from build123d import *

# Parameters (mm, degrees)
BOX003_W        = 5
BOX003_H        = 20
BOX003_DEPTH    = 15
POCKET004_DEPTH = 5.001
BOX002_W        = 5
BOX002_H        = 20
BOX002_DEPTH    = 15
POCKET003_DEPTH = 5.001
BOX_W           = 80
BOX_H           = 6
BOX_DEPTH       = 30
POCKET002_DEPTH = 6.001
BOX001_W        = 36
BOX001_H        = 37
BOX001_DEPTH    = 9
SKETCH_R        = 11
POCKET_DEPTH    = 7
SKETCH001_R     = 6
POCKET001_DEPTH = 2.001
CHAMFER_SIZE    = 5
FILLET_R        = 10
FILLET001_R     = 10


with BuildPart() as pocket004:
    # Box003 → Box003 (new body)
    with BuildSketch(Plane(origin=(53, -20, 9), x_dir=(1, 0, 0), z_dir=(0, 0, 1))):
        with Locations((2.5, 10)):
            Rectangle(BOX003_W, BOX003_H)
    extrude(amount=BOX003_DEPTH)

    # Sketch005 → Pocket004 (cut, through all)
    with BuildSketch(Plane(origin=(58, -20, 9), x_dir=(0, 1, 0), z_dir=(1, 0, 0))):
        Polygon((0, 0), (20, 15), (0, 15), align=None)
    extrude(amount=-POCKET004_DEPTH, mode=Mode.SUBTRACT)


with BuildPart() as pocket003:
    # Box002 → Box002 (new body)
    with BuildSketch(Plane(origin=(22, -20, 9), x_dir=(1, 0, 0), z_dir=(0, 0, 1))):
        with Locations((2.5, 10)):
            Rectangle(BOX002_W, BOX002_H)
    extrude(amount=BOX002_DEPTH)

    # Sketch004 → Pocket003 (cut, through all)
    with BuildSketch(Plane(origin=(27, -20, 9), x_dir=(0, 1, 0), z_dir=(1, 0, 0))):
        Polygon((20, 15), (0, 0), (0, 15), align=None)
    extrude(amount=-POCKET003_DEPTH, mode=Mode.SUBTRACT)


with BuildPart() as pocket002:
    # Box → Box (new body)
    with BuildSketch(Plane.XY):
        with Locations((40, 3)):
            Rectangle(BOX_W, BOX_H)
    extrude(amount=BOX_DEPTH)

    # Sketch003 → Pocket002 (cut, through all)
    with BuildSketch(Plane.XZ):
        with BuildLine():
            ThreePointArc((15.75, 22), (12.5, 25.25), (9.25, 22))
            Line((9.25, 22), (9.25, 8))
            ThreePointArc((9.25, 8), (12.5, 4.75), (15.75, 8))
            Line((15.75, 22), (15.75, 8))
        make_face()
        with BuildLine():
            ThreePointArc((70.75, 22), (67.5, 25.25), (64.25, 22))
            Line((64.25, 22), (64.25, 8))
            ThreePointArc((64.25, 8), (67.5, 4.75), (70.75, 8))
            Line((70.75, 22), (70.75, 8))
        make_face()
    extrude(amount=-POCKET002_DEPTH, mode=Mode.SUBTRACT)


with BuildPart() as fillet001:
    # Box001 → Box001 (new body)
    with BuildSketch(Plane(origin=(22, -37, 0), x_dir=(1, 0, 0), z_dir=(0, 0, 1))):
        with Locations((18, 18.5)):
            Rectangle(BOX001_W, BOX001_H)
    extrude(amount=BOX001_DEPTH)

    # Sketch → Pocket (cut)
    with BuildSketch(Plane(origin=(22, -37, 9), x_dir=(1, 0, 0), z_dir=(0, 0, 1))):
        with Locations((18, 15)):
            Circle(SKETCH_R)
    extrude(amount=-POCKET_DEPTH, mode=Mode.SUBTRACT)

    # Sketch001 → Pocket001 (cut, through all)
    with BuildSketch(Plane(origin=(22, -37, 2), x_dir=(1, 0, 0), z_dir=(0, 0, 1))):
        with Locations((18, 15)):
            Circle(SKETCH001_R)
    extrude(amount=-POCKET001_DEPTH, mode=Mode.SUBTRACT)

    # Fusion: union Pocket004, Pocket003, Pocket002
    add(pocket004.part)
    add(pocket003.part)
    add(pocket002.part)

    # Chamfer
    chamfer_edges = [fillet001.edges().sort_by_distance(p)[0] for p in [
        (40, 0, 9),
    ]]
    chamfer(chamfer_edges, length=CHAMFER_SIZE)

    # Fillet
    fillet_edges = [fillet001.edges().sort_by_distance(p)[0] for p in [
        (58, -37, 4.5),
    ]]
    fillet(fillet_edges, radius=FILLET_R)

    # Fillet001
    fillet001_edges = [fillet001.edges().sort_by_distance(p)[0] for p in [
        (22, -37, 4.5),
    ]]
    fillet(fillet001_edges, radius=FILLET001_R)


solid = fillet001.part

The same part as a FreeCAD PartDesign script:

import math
import FreeCAD as App
import Part
import Sketcher
Q = App.Units.Quantity


def edges_at(feature, points):
    """Names of the edges that pass closest to the given points."""
    edges = feature.Shape.Edges
    near = lambda p: min(range(len(edges)), key=lambda i: edges[i].distToShape(Part.Vertex(*p))[0])
    return sorted({f"Edge{near(p) + 1}" for p in points})

doc = App.newDocument("Part")
body = doc.addObject("PartDesign::Body", "Body")

sketch1 = body.newObject("Sketcher::SketchObject", "Sketch")
sketch1.AttachmentSupport = (doc.getObject("XY_Plane"), [""])
sketch1.MapMode = "FlatFace"
sketch1.AttachmentOffset = App.Placement(App.Vector(0, 0, 9), App.Rotation())
sketch1.addGeometry(Part.LineSegment(App.Vector(53, 0, 0), App.Vector(53, -20, 0)), False)
sketch1.addGeometry(Part.LineSegment(App.Vector(53, -20, 0), App.Vector(58, -20, 0)), False)
sketch1.addGeometry(Part.LineSegment(App.Vector(58, -20, 0), App.Vector(58, 0, 0)), False)
sketch1.addGeometry(Part.LineSegment(App.Vector(58, 0, 0), App.Vector(53, 0, 0)), False)
sketch1.addConstraint(Sketcher.Constraint("Coincident", 0, 2, 1, 1))
sketch1.addConstraint(Sketcher.Constraint("Coincident", 1, 2, 2, 1))
sketch1.addConstraint(Sketcher.Constraint("Coincident", 2, 2, 3, 1))
sketch1.addConstraint(Sketcher.Constraint("Coincident", 3, 2, 0, 1))
sketch1.addConstraint(Sketcher.Constraint("Vertical", 0))
sketch1.addConstraint(Sketcher.Constraint("Horizontal", 1))
sketch1.addConstraint(Sketcher.Constraint("Vertical", 2))
sketch1.addConstraint(Sketcher.Constraint("Horizontal", 3))
sketch1.addConstraint(Sketcher.Constraint("PointOnObject", 2, 2, -1))
sketch1.addConstraint(Sketcher.Constraint("DistanceX", 1, 1, 1, 2, Q("5 mm")))
sketch1.addConstraint(Sketcher.Constraint("DistanceY", 0, 2, 0, 1, Q("20 mm")))
sketch1.addConstraint(Sketcher.Constraint("DistanceX", -1, 1, 0, 2, Q("53 mm")))
pad1 = body.newObject("PartDesign::Pad", "Pad")
pad1.Profile = sketch1
pad1.Length = 15

sketch2 = body.newObject("Sketcher::SketchObject", "Sketch001")
sketch2.AttachmentSupport = (doc.getObject("YZ_Plane"), [""])
sketch2.MapMode = "FlatFace"
sketch2.AttachmentOffset = App.Placement(App.Vector(0, 0, 58), App.Rotation())
sketch2.addGeometry(Part.LineSegment(App.Vector(-20, 9, 0), App.Vector(0, 24, 0)), False)
sketch2.addGeometry(Part.LineSegment(App.Vector(0, 24, 0), App.Vector(-20, 24, 0)), False)
sketch2.addGeometry(Part.LineSegment(App.Vector(-20, 24, 0), App.Vector(-20, 9, 0)), False)
sketch2.addConstraint(Sketcher.Constraint("Coincident", 0, 2, 1, 1))
sketch2.addConstraint(Sketcher.Constraint("Coincident", 1, 2, 2, 1))
sketch2.addConstraint(Sketcher.Constraint("Coincident", 2, 2, 0, 1))
sketch2.addConstraint(Sketcher.Constraint("Horizontal", 1))
sketch2.addConstraint(Sketcher.Constraint("Vertical", 2))
sketch2.addConstraint(Sketcher.Constraint("PointOnObject", 0, 2, -2))
sketch2.addConstraint(Sketcher.Constraint("DistanceX", 1, 2, 1, 1, Q("20 mm")))
sketch2.addConstraint(Sketcher.Constraint("DistanceY", 2, 2, 2, 1, Q("15 mm")))
sketch2.addConstraint(Sketcher.Constraint("DistanceY", -1, 1, 0, 2, Q("24 mm")))
pocket1 = body.newObject("PartDesign::Pocket", "Pocket")
pocket1.Profile = sketch2
pocket1.Type = "ThroughAll"
body2 = doc.addObject("PartDesign::Body", "Body001")

sketch3 = body2.newObject("Sketcher::SketchObject", "Sketch002")
sketch3.AttachmentSupport = (doc.getObject("XY_Plane001"), [""])
sketch3.MapMode = "FlatFace"
sketch3.AttachmentOffset = App.Placement(App.Vector(0, 0, 9), App.Rotation())
sketch3.addGeometry(Part.LineSegment(App.Vector(22, 0, 0), App.Vector(22, -20, 0)), False)
sketch3.addGeometry(Part.LineSegment(App.Vector(22, -20, 0), App.Vector(27, -20, 0)), False)
sketch3.addGeometry(Part.LineSegment(App.Vector(27, -20, 0), App.Vector(27, 0, 0)), False)
sketch3.addGeometry(Part.LineSegment(App.Vector(27, 0, 0), App.Vector(22, 0, 0)), False)
sketch3.addConstraint(Sketcher.Constraint("Coincident", 0, 2, 1, 1))
sketch3.addConstraint(Sketcher.Constraint("Coincident", 1, 2, 2, 1))
sketch3.addConstraint(Sketcher.Constraint("Coincident", 2, 2, 3, 1))
sketch3.addConstraint(Sketcher.Constraint("Coincident", 3, 2, 0, 1))
sketch3.addConstraint(Sketcher.Constraint("Vertical", 0))
sketch3.addConstraint(Sketcher.Constraint("Horizontal", 1))
sketch3.addConstraint(Sketcher.Constraint("Vertical", 2))
sketch3.addConstraint(Sketcher.Constraint("Horizontal", 3))
sketch3.addConstraint(Sketcher.Constraint("PointOnObject", 2, 2, -1))
sketch3.addConstraint(Sketcher.Constraint("DistanceX", 1, 1, 1, 2, Q("5 mm")))
sketch3.addConstraint(Sketcher.Constraint("DistanceY", 0, 2, 0, 1, Q("20 mm")))
sketch3.addConstraint(Sketcher.Constraint("DistanceX", -1, 1, 0, 2, Q("22 mm")))
pad2 = body2.newObject("PartDesign::Pad", "Pad001")
pad2.Profile = sketch3
pad2.Length = 15

sketch4 = body2.newObject("Sketcher::SketchObject", "Sketch003")
sketch4.AttachmentSupport = (doc.getObject("YZ_Plane001"), [""])
sketch4.MapMode = "FlatFace"
sketch4.AttachmentOffset = App.Placement(App.Vector(0, 0, 27), App.Rotation())
sketch4.addGeometry(Part.LineSegment(App.Vector(-20, 9, 0), App.Vector(0, 24, 0)), False)
sketch4.addGeometry(Part.LineSegment(App.Vector(0, 24, 0), App.Vector(-20, 24, 0)), False)
sketch4.addGeometry(Part.LineSegment(App.Vector(-20, 24, 0), App.Vector(-20, 9, 0)), False)
sketch4.addConstraint(Sketcher.Constraint("Coincident", 0, 2, 1, 1))
sketch4.addConstraint(Sketcher.Constraint("Coincident", 1, 2, 2, 1))
sketch4.addConstraint(Sketcher.Constraint("Coincident", 2, 2, 0, 1))
sketch4.addConstraint(Sketcher.Constraint("Horizontal", 1))
sketch4.addConstraint(Sketcher.Constraint("Vertical", 2))
sketch4.addConstraint(Sketcher.Constraint("PointOnObject", 0, 2, -2))
sketch4.addConstraint(Sketcher.Constraint("DistanceX", 1, 2, 1, 1, Q("20 mm")))
sketch4.addConstraint(Sketcher.Constraint("DistanceY", 2, 2, 2, 1, Q("15 mm")))
sketch4.addConstraint(Sketcher.Constraint("DistanceY", -1, 1, 0, 2, Q("24 mm")))
pocket2 = body2.newObject("PartDesign::Pocket", "Pocket001")
pocket2.Profile = sketch4
pocket2.Type = "ThroughAll"
body3 = doc.addObject("PartDesign::Body", "Body002")

sketch5 = body3.newObject("Sketcher::SketchObject", "Sketch004")
sketch5.AttachmentSupport = (doc.getObject("XY_Plane002"), [""])
sketch5.MapMode = "FlatFace"
sketch5.addGeometry(Part.LineSegment(App.Vector(0, 6, 0), App.Vector(0, 0, 0)), False)
sketch5.addGeometry(Part.LineSegment(App.Vector(0, 0, 0), App.Vector(80, 0, 0)), False)
sketch5.addGeometry(Part.LineSegment(App.Vector(80, 0, 0), App.Vector(80, 6, 0)), False)
sketch5.addGeometry(Part.LineSegment(App.Vector(80, 6, 0), App.Vector(0, 6, 0)), False)
sketch5.addConstraint(Sketcher.Constraint("Coincident", 0, 2, 1, 1))
sketch5.addConstraint(Sketcher.Constraint("Coincident", 1, 2, 2, 1))
sketch5.addConstraint(Sketcher.Constraint("Coincident", 2, 2, 3, 1))
sketch5.addConstraint(Sketcher.Constraint("Coincident", 3, 2, 0, 1))
sketch5.addConstraint(Sketcher.Constraint("Vertical", 0))
sketch5.addConstraint(Sketcher.Constraint("Horizontal", 1))
sketch5.addConstraint(Sketcher.Constraint("Vertical", 2))
sketch5.addConstraint(Sketcher.Constraint("Horizontal", 3))
sketch5.addConstraint(Sketcher.Constraint("Coincident", 0, 2, -1, 1))
sketch5.addConstraint(Sketcher.Constraint("DistanceX", 1, 1, 1, 2, Q("80 mm")))
sketch5.addConstraint(Sketcher.Constraint("DistanceY", 0, 2, 0, 1, Q("6 mm")))
pad3 = body3.newObject("PartDesign::Pad", "Pad002")
pad3.Profile = sketch5
pad3.Length = 30

sketch6 = body3.newObject("Sketcher::SketchObject", "Sketch005")
sketch6.AttachmentSupport = (doc.getObject("XZ_Plane002"), [""])
sketch6.MapMode = "FlatFace"
sketch6.addGeometry(Part.ArcOfCircle(Part.Circle(App.Vector(12.5, 22, 0), App.Vector(0, 0, 1), 3.25), math.radians(0), math.radians(180)), False)
sketch6.addGeometry(Part.LineSegment(App.Vector(9.25, 22, 0), App.Vector(9.25, 8, 0)), False)
sketch6.addGeometry(Part.ArcOfCircle(Part.Circle(App.Vector(12.5, 8, 0), App.Vector(0, 0, 1), 3.25), math.radians(180), math.radians(360)), False)
sketch6.addGeometry(Part.LineSegment(App.Vector(15.75, 8, 0), App.Vector(15.75, 22, 0)), False)
sketch6.addGeometry(Part.ArcOfCircle(Part.Circle(App.Vector(67.5, 22, 0), App.Vector(0, 0, 1), 3.25), math.radians(0), math.radians(180)), False)
sketch6.addGeometry(Part.LineSegment(App.Vector(64.25, 22, 0), App.Vector(64.25, 8, 0)), False)
sketch6.addGeometry(Part.ArcOfCircle(Part.Circle(App.Vector(67.5, 8, 0), App.Vector(0, 0, 1), 3.25), math.radians(180), math.radians(360)), False)
sketch6.addGeometry(Part.LineSegment(App.Vector(70.75, 8, 0), App.Vector(70.75, 22, 0)), False)
sketch6.addConstraint(Sketcher.Constraint("Tangent", 0, 2, 1, 1))
sketch6.addConstraint(Sketcher.Constraint("Tangent", 1, 2, 2, 1))
sketch6.addConstraint(Sketcher.Constraint("Tangent", 2, 2, 3, 1))
sketch6.addConstraint(Sketcher.Constraint("Tangent", 3, 2, 0, 1))
sketch6.addConstraint(Sketcher.Constraint("Tangent", 4, 2, 5, 1))
sketch6.addConstraint(Sketcher.Constraint("Tangent", 5, 2, 6, 1))
sketch6.addConstraint(Sketcher.Constraint("Tangent", 6, 2, 7, 1))
sketch6.addConstraint(Sketcher.Constraint("Tangent", 7, 2, 4, 1))
sketch6.addConstraint(Sketcher.Constraint("Vertical", 1))
sketch6.addConstraint(Sketcher.Constraint("Vertical", 3))
sketch6.addConstraint(Sketcher.Constraint("Vertical", 5))
sketch6.addConstraint(Sketcher.Constraint("Vertical", 7))
sketch6.addConstraint(Sketcher.Constraint("Equal", 2, 4))
sketch6.addConstraint(Sketcher.Constraint("Horizontal", 0, 3, 4, 3))
sketch6.addConstraint(Sketcher.Constraint("Horizontal", 2, 3, 6, 3))
sketch6.addConstraint(Sketcher.Constraint("DistanceY", 1, 2, 1, 1, Q("14 mm")))
sketch6.addConstraint(Sketcher.Constraint("Radius", 0, Q("3.25 mm")))
sketch6.addConstraint(Sketcher.Constraint("DistanceY", -1, 1, 0, 3, Q("22 mm")))
sketch6.addConstraint(Sketcher.Constraint("DistanceX", 0, 3, 4, 3, Q("55 mm")))
sketch6.addConstraint(Sketcher.Constraint("DistanceX", -1, 1, 0, 3, Q("12.5 mm")))
pocket3 = body3.newObject("PartDesign::Pocket", "Pocket002")
pocket3.Profile = sketch6
pocket3.Type = "ThroughAll"
body4 = doc.addObject("PartDesign::Body", "Body003")

sketch7 = body4.newObject("Sketcher::SketchObject", "Sketch006")
sketch7.AttachmentSupport = (doc.getObject("XY_Plane003"), [""])
sketch7.MapMode = "FlatFace"
sketch7.addGeometry(Part.LineSegment(App.Vector(22, 0, 0), App.Vector(22, -37, 0)), False)
sketch7.addGeometry(Part.LineSegment(App.Vector(22, -37, 0), App.Vector(58, -37, 0)), False)
sketch7.addGeometry(Part.LineSegment(App.Vector(58, -37, 0), App.Vector(58, 0, 0)), False)
sketch7.addGeometry(Part.LineSegment(App.Vector(58, 0, 0), App.Vector(22, 0, 0)), False)
sketch7.addConstraint(Sketcher.Constraint("Coincident", 0, 2, 1, 1))
sketch7.addConstraint(Sketcher.Constraint("Coincident", 1, 2, 2, 1))
sketch7.addConstraint(Sketcher.Constraint("Coincident", 2, 2, 3, 1))
sketch7.addConstraint(Sketcher.Constraint("Coincident", 3, 2, 0, 1))
sketch7.addConstraint(Sketcher.Constraint("Vertical", 0))
sketch7.addConstraint(Sketcher.Constraint("Horizontal", 1))
sketch7.addConstraint(Sketcher.Constraint("Vertical", 2))
sketch7.addConstraint(Sketcher.Constraint("Horizontal", 3))
sketch7.addConstraint(Sketcher.Constraint("PointOnObject", 2, 2, -1))
sketch7.addConstraint(Sketcher.Constraint("DistanceX", 1, 1, 1, 2, Q("36 mm")))
sketch7.addConstraint(Sketcher.Constraint("DistanceY", 0, 2, 0, 1, Q("37 mm")))
sketch7.addConstraint(Sketcher.Constraint("DistanceX", -1, 1, 0, 2, Q("22 mm")))
pad4 = body4.newObject("PartDesign::Pad", "Pad003")
pad4.Profile = sketch7
pad4.Length = 9

sketch8 = body4.newObject("Sketcher::SketchObject", "Sketch007")
sketch8.AttachmentSupport = (doc.getObject("XY_Plane003"), [""])
sketch8.MapMode = "FlatFace"
sketch8.AttachmentOffset = App.Placement(App.Vector(0, 0, 9), App.Rotation())
sketch8.addGeometry(Part.Circle(App.Vector(40, -22, 0), App.Vector(0, 0, 1), 11), False)
sketch8.addConstraint(Sketcher.Constraint("Diameter", 0, Q("22 mm")))
sketch8.addConstraint(Sketcher.Constraint("DistanceX", -1, 1, 0, 3, Q("40 mm")))
sketch8.addConstraint(Sketcher.Constraint("DistanceY", 0, 3, -1, 1, Q("22 mm")))
pocket4 = body4.newObject("PartDesign::Pocket", "Pocket003")
pocket4.Profile = sketch8
pocket4.Length = 7

sketch9 = body4.newObject("Sketcher::SketchObject", "Sketch008")
sketch9.AttachmentSupport = (doc.getObject("XY_Plane003"), [""])
sketch9.MapMode = "FlatFace"
sketch9.AttachmentOffset = App.Placement(App.Vector(0, 0, 2), App.Rotation())
sketch9.addGeometry(Part.Circle(App.Vector(40, -22, 0), App.Vector(0, 0, 1), 6), False)
sketch9.addConstraint(Sketcher.Constraint("Diameter", 0, Q("12 mm")))
sketch9.addConstraint(Sketcher.Constraint("DistanceX", -1, 1, 0, 3, Q("40 mm")))
sketch9.addConstraint(Sketcher.Constraint("DistanceY", 0, 3, -1, 1, Q("22 mm")))
pocket5 = body4.newObject("PartDesign::Pocket", "Pocket004")
pocket5.Profile = sketch9
pocket5.Type = "ThroughAll"
doc.recompute()

boolean = body4.newObject("PartDesign::Boolean", "Boolean")
boolean.Type = "Fuse"
boolean.addObjects([body])
doc.recompute()

boolean2 = body4.newObject("PartDesign::Boolean", "Boolean001")
boolean2.Type = "Fuse"
boolean2.addObjects([body2])
doc.recompute()

boolean3 = body4.newObject("PartDesign::Boolean", "Boolean002")
boolean3.Type = "Fuse"
boolean3.addObjects([body3])
doc.recompute()

chamfer = body4.newObject("PartDesign::Chamfer", "Chamfer")
chamfer.Base = (boolean3, edges_at(boolean3, [(40, 0, 9)]))
chamfer.Size = 5
doc.recompute()

fillet = body4.newObject("PartDesign::Fillet", "Fillet")
fillet.Base = (chamfer, edges_at(chamfer, [(58, -37, 4.5)]))
fillet.Radius = 10
doc.recompute()

fillet2 = body4.newObject("PartDesign::Fillet", "Fillet001")
fillet2.Base = (fillet, edges_at(fillet, [(22, -37, 4.5)]))
fillet2.Radius = 10

doc.recompute()
